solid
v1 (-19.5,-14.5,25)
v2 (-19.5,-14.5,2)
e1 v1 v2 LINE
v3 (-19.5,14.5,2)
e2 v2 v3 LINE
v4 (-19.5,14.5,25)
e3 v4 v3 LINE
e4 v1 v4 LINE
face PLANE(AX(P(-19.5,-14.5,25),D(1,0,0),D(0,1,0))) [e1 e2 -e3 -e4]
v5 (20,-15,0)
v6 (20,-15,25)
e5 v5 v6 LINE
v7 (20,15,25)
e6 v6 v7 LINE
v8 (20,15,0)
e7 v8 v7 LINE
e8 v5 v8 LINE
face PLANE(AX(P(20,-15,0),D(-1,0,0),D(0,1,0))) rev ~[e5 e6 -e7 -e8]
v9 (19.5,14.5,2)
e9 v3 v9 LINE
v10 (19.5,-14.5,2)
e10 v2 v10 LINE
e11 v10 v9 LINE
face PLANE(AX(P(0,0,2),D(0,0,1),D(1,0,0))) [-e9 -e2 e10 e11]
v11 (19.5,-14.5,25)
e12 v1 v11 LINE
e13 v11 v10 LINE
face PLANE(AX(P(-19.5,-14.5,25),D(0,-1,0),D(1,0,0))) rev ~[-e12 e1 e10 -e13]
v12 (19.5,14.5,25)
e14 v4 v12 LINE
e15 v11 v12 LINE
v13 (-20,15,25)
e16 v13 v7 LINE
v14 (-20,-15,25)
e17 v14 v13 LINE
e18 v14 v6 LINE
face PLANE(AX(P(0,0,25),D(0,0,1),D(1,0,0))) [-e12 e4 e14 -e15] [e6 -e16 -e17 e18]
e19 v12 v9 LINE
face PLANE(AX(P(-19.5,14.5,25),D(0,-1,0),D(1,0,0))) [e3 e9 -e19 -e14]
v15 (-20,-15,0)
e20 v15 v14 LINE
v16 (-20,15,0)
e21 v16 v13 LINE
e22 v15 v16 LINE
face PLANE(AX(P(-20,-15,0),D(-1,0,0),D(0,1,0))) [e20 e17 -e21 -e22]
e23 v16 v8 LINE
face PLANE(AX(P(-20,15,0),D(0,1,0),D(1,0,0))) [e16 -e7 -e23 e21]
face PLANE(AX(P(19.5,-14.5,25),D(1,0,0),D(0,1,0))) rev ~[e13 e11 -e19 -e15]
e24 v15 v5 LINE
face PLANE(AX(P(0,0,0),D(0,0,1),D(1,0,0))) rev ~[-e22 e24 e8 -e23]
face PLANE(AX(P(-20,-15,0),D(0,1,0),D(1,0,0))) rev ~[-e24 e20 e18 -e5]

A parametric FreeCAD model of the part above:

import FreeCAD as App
import Part
import Sketcher

doc = App.newDocument("Part")
body = doc.addObject("PartDesign::Body", "Body")

# Sketch on XY plane
sketch1 = body.newObject("Sketcher::SketchObject", "Sketch")
sketch1.AttachmentSupport = (doc.getObject("XY_Plane"), [""])
sketch1.MapMode = "FlatFace"
sketch1.addGeometry([
    Part.LineSegment(App.Vector(-20, 15, 0), App.Vector(-20, -15, 0)),
    Part.LineSegment(App.Vector(-20, -15, 0), App.Vector(20, -15, 0)),
    Part.LineSegment(App.Vector(20, -15, 0), App.Vector(20, 15, 0)),
    Part.LineSegment(App.Vector(20, 15, 0), App.Vector(-20, 15, 0)),
], False)
sketch1.addConstraint([
    Sketcher.Constraint("Coincident", 0, 2, 1, 1),
    Sketcher.Constraint("Coincident", 1, 2, 2, 1),
    Sketcher.Constraint("Coincident", 2, 2, 3, 1),
    Sketcher.Constraint("Coincident", 3, 2, 0, 1),
    Sketcher.Constraint("Vertical", 0),
    Sketcher.Constraint("Horizontal", 1),
    Sketcher.Constraint("Vertical", 2),
    Sketcher.Constraint("Horizontal", 3),
    Sketcher.Constraint("Symmetric", 0, 2, 2, 2, -1, 1),
    Sketcher.Constraint("DistanceX", 1, 1, 1, 2, 40.0),
    Sketcher.Constraint("DistanceY", 0, 2, 0, 1, 30.0),
])
pad1 = body.newObject("PartDesign::Pad", "Pad")
pad1.Profile = sketch1
pad1.Length = 25

# Sketch on XY plane
sketch2 = body.newObject("Sketcher::SketchObject", "Sketch001")
sketch2.AttachmentSupport = (doc.getObject("XY_Plane"), [""])
sketch2.MapMode = "FlatFace"
sketch2.AttachmentOffset = App.Placement(App.Vector(0, 0, 25), App.Rotation())
sketch2.addGeometry([
    Part.LineSegment(App.Vector(-20, 14, 0), App.Vector(-20, -14, 0)),
    Part.LineSegment(App.Vector(-20, -14, 0), App.Vector(20, -14, 0)),
    Part.LineSegment(App.Vector(20, -14, 0), App.Vector(20, 14, 0)),
    Part.LineSegment(App.Vector(20, 14, 0), App.Vector(-20, 14, 0)),
], False)
sketch2.addConstraint([
    Sketcher.Constraint("Coincident", 0, 2, 1, 1),
    Sketcher.Constraint("Coincident", 1, 2, 2, 1),
    Sketcher.Constraint("Coincident", 2, 2, 3, 1),
    Sketcher.Constraint("Coincident", 3, 2, 0, 1),
    Sketcher.Constraint("Vertical", 0),
    Sketcher.Constraint("Horizontal", 1),
    Sketcher.Constraint("Vertical", 2),
    Sketcher.Constraint("Horizontal", 3),
    Sketcher.Constraint("Symmetric", 0, 2, 2, 2, -1, 1),
    Sketcher.Constraint("DistanceX", 1, 1, 1, 2, 39.0),
    Sketcher.Constraint("DistanceY", 0, 2, 0, 1, 29.0),
])
pocket1 = body.newObject("PartDesign::Pocket", "Pocket")
pocket1.Profile = sketch2
pocket1.Length = 23

doc.recompute()
